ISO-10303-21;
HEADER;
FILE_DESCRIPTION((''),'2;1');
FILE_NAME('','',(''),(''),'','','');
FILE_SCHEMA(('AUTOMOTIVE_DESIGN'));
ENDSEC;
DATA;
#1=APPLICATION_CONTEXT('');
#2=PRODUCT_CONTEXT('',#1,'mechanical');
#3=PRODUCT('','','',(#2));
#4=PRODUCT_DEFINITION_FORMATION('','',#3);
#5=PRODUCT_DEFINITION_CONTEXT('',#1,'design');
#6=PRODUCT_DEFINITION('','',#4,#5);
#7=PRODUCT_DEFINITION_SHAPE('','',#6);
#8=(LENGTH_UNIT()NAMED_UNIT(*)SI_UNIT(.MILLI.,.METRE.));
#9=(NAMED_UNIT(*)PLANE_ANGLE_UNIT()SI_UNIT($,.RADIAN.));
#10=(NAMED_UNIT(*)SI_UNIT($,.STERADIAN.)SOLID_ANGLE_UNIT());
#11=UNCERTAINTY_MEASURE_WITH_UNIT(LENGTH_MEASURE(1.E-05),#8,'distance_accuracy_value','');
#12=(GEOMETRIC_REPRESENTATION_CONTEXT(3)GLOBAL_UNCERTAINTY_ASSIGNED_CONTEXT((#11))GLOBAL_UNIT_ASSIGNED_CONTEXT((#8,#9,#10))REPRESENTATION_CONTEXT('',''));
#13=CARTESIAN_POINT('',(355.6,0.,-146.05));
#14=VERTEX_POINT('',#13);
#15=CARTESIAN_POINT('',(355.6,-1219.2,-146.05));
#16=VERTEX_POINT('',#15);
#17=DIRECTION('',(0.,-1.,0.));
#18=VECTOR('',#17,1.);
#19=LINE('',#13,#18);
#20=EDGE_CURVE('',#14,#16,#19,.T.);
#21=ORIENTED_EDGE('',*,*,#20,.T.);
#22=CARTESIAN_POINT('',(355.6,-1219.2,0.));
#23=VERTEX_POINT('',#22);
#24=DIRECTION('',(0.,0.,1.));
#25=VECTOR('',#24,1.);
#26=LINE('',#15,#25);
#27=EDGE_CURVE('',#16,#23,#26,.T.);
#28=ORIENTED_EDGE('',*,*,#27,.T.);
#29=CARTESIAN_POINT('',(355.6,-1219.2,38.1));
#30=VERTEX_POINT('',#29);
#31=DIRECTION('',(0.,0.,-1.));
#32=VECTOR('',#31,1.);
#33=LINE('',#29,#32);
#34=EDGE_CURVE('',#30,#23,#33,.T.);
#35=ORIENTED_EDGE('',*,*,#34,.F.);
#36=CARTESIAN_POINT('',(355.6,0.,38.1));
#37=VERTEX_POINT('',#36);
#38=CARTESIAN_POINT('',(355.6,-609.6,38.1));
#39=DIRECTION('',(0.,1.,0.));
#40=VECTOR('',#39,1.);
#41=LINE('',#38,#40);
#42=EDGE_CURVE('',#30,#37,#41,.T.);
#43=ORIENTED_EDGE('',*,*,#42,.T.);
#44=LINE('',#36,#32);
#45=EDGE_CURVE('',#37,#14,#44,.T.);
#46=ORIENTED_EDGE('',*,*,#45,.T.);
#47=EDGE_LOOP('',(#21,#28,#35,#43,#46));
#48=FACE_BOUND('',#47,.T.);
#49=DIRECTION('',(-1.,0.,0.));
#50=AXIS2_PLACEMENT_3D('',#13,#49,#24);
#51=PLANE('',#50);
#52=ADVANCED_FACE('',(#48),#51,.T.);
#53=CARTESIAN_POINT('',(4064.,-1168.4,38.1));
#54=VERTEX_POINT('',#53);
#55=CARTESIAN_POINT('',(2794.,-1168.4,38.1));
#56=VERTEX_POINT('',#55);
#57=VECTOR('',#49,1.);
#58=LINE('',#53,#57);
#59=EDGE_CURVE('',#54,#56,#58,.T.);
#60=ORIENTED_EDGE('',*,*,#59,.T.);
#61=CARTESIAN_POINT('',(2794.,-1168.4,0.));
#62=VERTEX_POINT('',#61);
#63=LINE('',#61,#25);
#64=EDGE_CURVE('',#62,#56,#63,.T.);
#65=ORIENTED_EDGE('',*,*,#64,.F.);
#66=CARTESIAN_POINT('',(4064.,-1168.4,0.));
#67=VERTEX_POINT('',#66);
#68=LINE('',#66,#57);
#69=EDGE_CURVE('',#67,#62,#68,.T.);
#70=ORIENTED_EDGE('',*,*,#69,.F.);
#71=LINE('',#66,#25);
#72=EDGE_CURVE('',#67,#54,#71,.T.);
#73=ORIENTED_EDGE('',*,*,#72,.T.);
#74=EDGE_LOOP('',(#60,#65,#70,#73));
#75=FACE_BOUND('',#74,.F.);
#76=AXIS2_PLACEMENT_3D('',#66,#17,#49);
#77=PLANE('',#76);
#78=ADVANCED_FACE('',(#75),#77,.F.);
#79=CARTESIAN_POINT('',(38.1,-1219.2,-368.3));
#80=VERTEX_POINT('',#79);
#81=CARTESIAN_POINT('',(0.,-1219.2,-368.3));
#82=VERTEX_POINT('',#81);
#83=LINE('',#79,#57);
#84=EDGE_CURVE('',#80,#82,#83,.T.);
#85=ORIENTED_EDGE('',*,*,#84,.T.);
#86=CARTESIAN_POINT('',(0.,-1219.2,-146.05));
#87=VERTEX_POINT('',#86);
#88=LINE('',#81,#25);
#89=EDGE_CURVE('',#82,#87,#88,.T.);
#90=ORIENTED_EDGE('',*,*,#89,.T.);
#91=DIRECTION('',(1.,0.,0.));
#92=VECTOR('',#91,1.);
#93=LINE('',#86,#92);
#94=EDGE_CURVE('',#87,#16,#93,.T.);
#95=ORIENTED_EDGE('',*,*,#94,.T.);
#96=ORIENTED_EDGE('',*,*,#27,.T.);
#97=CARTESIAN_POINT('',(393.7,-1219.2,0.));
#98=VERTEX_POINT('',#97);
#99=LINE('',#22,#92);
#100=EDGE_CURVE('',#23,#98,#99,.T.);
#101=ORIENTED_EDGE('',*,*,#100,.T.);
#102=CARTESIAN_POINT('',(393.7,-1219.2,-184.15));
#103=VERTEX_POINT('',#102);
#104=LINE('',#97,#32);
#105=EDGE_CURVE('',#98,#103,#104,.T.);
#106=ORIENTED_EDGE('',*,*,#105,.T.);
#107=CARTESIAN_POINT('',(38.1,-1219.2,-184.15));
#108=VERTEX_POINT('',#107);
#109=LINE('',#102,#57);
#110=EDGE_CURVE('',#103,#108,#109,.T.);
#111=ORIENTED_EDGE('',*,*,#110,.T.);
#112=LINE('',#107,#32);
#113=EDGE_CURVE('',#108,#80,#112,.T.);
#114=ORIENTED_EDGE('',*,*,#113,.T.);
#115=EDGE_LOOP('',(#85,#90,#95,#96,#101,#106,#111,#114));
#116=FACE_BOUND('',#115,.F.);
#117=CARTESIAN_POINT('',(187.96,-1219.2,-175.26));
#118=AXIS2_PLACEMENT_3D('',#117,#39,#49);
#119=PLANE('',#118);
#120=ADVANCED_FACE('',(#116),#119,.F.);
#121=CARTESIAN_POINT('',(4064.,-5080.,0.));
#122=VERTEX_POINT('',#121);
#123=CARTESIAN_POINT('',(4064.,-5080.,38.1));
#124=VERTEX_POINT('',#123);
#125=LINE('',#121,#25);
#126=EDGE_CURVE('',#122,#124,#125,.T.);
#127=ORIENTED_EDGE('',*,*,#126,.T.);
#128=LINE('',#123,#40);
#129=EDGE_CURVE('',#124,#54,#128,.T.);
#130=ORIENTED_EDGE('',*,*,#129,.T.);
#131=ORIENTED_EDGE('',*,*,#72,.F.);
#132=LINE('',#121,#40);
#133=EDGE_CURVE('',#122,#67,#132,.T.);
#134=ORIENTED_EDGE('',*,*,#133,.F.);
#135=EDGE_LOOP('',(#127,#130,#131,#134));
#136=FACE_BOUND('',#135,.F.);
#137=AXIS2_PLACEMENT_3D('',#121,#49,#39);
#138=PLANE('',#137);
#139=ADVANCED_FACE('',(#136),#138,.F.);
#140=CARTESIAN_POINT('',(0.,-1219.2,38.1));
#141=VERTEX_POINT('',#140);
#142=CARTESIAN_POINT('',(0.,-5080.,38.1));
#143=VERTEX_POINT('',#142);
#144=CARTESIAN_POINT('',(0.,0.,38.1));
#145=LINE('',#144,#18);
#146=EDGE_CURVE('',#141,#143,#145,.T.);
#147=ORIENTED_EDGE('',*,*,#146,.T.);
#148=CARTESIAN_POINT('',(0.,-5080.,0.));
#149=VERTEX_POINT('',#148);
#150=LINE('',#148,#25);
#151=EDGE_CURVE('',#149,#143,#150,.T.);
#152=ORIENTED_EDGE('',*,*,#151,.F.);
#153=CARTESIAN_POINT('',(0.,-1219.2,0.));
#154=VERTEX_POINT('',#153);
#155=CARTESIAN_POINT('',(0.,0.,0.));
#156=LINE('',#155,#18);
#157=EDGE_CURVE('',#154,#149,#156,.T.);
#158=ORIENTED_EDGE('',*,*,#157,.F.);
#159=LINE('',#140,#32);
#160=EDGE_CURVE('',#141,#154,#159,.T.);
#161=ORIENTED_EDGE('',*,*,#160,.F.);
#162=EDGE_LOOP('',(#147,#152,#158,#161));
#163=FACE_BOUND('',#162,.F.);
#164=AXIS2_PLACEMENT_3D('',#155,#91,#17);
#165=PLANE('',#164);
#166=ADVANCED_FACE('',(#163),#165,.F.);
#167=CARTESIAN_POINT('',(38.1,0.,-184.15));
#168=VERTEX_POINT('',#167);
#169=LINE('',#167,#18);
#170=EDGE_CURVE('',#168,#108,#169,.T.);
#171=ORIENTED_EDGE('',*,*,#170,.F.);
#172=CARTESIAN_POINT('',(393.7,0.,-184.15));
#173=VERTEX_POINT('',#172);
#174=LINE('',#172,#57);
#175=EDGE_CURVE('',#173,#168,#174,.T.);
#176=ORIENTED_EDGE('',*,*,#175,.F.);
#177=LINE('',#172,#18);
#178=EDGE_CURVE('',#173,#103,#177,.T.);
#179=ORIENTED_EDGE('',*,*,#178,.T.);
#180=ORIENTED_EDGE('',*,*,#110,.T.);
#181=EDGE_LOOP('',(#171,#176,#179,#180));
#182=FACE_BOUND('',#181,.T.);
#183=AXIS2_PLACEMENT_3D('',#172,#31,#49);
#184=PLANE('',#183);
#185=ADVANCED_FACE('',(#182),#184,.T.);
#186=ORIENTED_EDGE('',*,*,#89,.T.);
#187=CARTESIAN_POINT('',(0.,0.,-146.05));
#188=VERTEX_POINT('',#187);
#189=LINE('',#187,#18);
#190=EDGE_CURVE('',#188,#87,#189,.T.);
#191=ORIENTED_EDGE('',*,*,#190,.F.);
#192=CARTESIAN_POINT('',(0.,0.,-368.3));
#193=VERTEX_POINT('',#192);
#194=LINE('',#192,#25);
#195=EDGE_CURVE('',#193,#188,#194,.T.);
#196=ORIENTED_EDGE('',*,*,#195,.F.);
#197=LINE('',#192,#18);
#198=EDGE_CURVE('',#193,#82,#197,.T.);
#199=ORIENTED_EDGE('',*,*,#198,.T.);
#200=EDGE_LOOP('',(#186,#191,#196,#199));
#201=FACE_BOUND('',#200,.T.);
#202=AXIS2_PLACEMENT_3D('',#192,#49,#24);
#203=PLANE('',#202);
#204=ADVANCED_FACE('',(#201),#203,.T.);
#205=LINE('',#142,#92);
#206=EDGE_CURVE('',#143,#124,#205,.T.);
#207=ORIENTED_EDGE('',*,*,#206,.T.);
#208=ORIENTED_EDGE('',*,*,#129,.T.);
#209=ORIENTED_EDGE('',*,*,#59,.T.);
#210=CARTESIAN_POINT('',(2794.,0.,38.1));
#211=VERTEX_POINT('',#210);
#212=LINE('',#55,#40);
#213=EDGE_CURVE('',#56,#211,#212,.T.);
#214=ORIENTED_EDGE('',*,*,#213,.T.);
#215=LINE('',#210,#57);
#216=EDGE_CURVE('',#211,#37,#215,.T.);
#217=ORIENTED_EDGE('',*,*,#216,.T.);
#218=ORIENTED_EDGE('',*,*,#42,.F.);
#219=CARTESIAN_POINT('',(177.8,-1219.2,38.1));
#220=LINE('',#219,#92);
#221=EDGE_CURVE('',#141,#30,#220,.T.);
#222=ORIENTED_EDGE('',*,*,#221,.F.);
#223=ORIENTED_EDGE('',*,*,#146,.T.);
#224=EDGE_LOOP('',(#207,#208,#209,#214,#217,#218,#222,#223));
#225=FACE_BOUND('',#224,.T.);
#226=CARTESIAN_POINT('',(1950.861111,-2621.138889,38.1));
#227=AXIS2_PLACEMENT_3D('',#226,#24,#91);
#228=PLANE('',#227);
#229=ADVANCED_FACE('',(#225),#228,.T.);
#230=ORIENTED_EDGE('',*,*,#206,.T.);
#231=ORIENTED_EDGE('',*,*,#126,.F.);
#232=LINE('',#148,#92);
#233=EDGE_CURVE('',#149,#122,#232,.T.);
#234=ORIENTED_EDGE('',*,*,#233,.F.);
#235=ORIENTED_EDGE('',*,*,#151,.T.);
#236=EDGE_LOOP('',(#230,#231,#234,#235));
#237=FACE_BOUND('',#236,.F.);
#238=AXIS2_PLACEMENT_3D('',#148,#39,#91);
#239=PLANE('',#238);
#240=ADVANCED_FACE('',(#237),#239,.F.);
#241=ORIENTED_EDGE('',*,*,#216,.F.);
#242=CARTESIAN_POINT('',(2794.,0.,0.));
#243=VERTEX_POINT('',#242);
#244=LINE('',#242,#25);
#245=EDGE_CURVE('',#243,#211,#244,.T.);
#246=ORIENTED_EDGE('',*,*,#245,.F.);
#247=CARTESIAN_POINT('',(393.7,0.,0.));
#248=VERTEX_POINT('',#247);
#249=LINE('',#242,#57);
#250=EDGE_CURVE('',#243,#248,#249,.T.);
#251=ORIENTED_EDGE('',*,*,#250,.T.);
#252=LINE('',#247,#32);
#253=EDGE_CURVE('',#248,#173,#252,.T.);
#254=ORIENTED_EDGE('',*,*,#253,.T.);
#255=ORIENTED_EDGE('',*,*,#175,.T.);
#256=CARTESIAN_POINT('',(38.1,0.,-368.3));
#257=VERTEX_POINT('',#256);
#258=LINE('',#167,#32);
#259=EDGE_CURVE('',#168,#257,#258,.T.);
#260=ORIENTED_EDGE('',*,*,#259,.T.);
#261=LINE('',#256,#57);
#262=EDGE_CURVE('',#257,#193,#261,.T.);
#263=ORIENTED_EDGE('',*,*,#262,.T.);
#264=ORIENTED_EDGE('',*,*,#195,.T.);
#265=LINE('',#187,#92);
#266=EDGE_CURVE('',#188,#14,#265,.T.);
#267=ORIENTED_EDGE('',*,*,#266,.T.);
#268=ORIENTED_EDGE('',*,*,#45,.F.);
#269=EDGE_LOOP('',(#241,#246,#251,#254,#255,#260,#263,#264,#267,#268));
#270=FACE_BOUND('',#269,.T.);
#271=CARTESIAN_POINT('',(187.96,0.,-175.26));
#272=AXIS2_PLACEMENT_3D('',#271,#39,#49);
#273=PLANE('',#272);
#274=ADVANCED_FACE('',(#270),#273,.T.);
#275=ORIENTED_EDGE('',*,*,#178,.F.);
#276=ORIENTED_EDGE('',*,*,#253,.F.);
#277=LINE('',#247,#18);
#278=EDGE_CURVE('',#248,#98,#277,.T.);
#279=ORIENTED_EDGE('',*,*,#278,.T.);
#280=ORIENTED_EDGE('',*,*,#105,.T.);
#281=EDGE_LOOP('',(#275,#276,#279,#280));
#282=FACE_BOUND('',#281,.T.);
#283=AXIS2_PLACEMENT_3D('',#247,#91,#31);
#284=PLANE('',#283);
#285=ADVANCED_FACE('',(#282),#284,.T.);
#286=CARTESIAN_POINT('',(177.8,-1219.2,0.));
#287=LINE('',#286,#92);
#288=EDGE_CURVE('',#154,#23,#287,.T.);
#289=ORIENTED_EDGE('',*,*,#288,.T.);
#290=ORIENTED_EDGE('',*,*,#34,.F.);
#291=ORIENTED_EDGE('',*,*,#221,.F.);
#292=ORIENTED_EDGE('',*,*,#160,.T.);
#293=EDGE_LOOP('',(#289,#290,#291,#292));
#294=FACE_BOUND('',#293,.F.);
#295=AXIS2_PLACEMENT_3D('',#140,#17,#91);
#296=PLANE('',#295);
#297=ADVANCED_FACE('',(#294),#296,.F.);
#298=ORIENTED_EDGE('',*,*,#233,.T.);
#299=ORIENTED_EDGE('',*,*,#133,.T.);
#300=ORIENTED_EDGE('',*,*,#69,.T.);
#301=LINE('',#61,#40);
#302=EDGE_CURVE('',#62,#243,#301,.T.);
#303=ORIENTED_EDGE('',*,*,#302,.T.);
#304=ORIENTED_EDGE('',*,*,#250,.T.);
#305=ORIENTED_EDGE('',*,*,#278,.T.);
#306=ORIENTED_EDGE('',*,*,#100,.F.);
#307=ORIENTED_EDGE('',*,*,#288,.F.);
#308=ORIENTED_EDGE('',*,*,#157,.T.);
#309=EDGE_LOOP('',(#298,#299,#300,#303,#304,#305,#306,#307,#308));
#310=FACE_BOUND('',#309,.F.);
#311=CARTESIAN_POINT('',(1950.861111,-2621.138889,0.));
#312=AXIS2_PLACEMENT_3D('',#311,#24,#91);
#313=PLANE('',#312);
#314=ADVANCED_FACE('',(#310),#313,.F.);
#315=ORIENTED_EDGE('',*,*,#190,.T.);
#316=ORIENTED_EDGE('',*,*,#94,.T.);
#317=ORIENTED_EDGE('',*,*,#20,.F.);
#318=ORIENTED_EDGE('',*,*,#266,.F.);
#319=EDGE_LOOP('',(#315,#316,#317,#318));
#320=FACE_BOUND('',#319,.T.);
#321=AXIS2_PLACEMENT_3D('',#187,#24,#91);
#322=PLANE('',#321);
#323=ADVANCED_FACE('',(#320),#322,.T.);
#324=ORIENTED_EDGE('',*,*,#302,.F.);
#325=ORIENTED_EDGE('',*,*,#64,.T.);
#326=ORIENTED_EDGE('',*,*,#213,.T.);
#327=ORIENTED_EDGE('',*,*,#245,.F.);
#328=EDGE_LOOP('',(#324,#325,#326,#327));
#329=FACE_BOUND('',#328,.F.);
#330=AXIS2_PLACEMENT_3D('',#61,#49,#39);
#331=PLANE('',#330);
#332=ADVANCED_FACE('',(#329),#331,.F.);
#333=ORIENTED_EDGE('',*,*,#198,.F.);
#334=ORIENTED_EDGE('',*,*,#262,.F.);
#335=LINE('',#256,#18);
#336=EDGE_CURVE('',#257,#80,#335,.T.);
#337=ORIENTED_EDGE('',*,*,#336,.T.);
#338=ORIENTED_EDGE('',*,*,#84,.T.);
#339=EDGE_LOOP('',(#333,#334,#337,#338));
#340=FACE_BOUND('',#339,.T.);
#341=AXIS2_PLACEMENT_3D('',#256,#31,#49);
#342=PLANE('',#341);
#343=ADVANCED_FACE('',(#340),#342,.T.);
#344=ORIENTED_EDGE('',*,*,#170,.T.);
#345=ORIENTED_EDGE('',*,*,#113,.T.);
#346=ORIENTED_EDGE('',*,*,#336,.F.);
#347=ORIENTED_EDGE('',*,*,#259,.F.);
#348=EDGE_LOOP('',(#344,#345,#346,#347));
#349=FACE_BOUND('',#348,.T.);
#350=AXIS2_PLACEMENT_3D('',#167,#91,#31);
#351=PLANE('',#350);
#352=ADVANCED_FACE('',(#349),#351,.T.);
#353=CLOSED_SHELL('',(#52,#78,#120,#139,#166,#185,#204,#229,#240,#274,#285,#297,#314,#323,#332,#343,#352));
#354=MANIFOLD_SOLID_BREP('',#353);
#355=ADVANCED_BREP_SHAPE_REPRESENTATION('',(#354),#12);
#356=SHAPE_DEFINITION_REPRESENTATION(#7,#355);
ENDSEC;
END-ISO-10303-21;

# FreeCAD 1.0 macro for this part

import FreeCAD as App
import Part
import Sketcher
from FreeCAD import Vector
Q = App.Units.Quantity

doc = App.newDocument("Part")
body = doc.addObject("PartDesign::Body", "Body")

# Sketch on XY plane
sketch1 = doc.addObject("Sketcher::SketchObject", "Sketch")
body.addObject(sketch1)
sketch1.AttachmentSupport = (doc.XY_Plane, [""])
sketch1.MapMode = "FlatFace"
sketch1.addGeometry(Part.LineSegment(Vector(2794, 0, 0), Vector(0, 0, 0)), False)
sketch1.addGeometry(Part.LineSegment(Vector(0, 0, 0), Vector(0, -5080, 0)), False)
sketch1.addGeometry(Part.LineSegment(Vector(0, -5080, 0), Vector(4064, -5080, 0)), False)
sketch1.addGeometry(Part.LineSegment(Vector(4064, -5080, 0), Vector(4064, -1168, 0)), False)
sketch1.addGeometry(Part.LineSegment(Vector(4064, -1168, 0), Vector(2794, -1168, 0)), False)
sketch1.addGeometry(Part.LineSegment(Vector(2794, -1168, 0), Vector(2794, 0, 0)), False)
sketch1.addConstraint(Sketcher.Constraint("Coincident", 0, 2, 1, 1))
sketch1.addConstraint(Sketcher.Constraint("Coincident", 1, 2, 2, 1))
sketch1.addConstraint(Sketcher.Constraint("Coincident", 2, 2, 3, 1))
sketch1.addConstraint(Sketcher.Constraint("Coincident", 3, 2, 4, 1))
sketch1.addConstraint(Sketcher.Constraint("Coincident", 4, 2, 5, 1))
sketch1.addConstraint(Sketcher.Constraint("Coincident", 5, 2, 0, 1))
sketch1.addConstraint(Sketcher.Constraint("Horizontal", 0))
sketch1.addConstraint(Sketcher.Constraint("Vertical", 1))
sketch1.addConstraint(Sketcher.Constraint("Horizontal", 2))
sketch1.addConstraint(Sketcher.Constraint("Vertical", 3))
sketch1.addConstraint(Sketcher.Constraint("Horizontal", 4))
sketch1.addConstraint(Sketcher.Constraint("Vertical", 5))
sketch1.addConstraint(Sketcher.Constraint("Coincident", 0, 2, -1, 1))
sketch1.addConstraint(Sketcher.Constraint("DistanceX", 0, 2, 0, 1, Q("110 in")))
sketch1.addConstraint(Sketcher.Constraint("DistanceX", 2, 1, 2, 2, Q("160 in")))
sketch1.addConstraint(Sketcher.Constraint("DistanceY", 1, 2, 1, 1, Q("200 in")))
sketch1.addConstraint(Sketcher.Constraint("DistanceY", 3, 1, 3, 2, Q("154 in")))
pad1 = doc.addObject("PartDesign::Pad", "Pad")
body.addObject(pad1)
pad1.Profile = sketch1
pad1.Length = Q("1.5 in")

# Sketch on XY plane
sketch2 = doc.addObject("Sketcher::SketchObject", "Sketch001")
body.addObject(sketch2)
sketch2.AttachmentSupport = (doc.XY_Plane, [""])
sketch2.MapMode = "FlatFace"
sketch2.AttachmentOffset = App.Placement(Vector(0, 0, 1.5 * 25.4), App.Rotation())
sketch2.addGeometry(Part.LineSegment(Vector(0, 0, 0), Vector(0, -1219, 0)), False)
sketch2.addGeometry(Part.LineSegment(Vector(0, -1219, 0), Vector(356, -1219, 0)), False)
sketch2.addGeometry(Part.LineSegment(Vector(356, -1219, 0), Vector(356, 0, 0)), False)
sketch2.addGeometry(Part.LineSegment(Vector(356, 0, 0), Vector(0, 0, 0)), False)
sketch2.addConstraint(Sketcher.Constraint("Coincident", 0, 2, 1, 1))
sketch2.addConstraint(Sketcher.Constraint("Coincident", 1, 2, 2, 1))
sketch2.addConstraint(Sketcher.Constraint("Coincident", 2, 2, 3, 1))
sketch2.addConstraint(Sketcher.Constraint("Coincident", 3, 2, 0, 1))
sketch2.addConstraint(Sketcher.Constraint("Vertical", 0))
sketch2.addConstraint(Sketcher.Constraint("Horizontal", 1))
sketch2.addConstraint(Sketcher.Constraint("Vertical", 2))
sketch2.addConstraint(Sketcher.Constraint("Horizontal", 3))
sketch2.addConstraint(Sketcher.Constraint("Coincident", 3, 2, -1, 1))
sketch2.addConstraint(Sketcher.Constraint("DistanceX", 1, 1, 1, 2, Q("14 in")))
sketch2.addConstraint(Sketcher.Constraint("DistanceY", 0, 2, 0, 1, Q("48 in")))
pocket1 = doc.addObject("PartDesign::Pocket", "Pocket")
body.addObject(pocket1)
pocket1.Profile = sketch2
pocket1.Length = Q("1.5 in")

# Sketch on XZ plane
sketch3 = doc.addObject("Sketcher::SketchObject", "Sketch002")
body.addObject(sketch3)
sketch3.AttachmentSupport = (doc.XZ_Plane, [""])
sketch3.MapMode = "FlatFace"
sketch3.addGeometry(Part.LineSegment(Vector(356, -146, 0), Vector(356, 0, 0)), False)
sketch3.addGeometry(Part.LineSegment(Vector(356, 0, 0), Vector(394, 0, 0)), False)
sketch3.addGeometry(Part.LineSegment(Vector(394, 0, 0), Vector(394, -184, 0)), False)
sketch3.addGeometry(Part.LineSegment(Vector(394, -184, 0), Vector(38, -184, 0)), False)
sketch3.addGeometry(Part.LineSegment(Vector(38, -184, 0), Vector(38, -368, 0)), False)
sketch3.addGeometry(Part.LineSegment(Vector(38, -368, 0), Vector(0, -368, 0)), False)
sketch3.addGeometry(Part.LineSegment(Vector(0, -368, 0), Vector(0, -146, 0)), False)
sketch3.addGeometry(Part.LineSegment(Vector(0, -146, 0), Vector(356, -146, 0)), False)
sketch3.addConstraint(Sketcher.Constraint("Coincident", 0, 2, 1, 1))
sketch3.addConstraint(Sketcher.Constraint("Coincident", 1, 2, 2, 1))
sketch3.addConstraint(Sketcher.Constraint("Coincident", 2, 2, 3, 1))
sketch3.addConstraint(Sketcher.Constraint("Coincident", 3, 2, 4, 1))
sketch3.addConstraint(Sketcher.Constraint("Coincident", 4, 2, 5, 1))
sketch3.addConstraint(Sketcher.Constraint("Coincident", 5, 2, 6, 1))
sketch3.addConstraint(Sketcher.Constraint("Coincident", 6, 2, 7, 1))
sketch3.addConstraint(Sketcher.Constraint("Coincident", 7, 2, 0, 1))
sketch3.addConstraint(Sketcher.Constraint("Vertical", 0))
sketch3.addConstraint(Sketcher.Constraint("Horizontal", 1))
sketch3.addConstraint(Sketcher.Constraint("Vertical", 2))
sketch3.addConstraint(Sketcher.Constraint("Horizontal", 3))
sketch3.addConstraint(Sketcher.Constraint("Vertical", 4))
sketch3.addConstraint(Sketcher.Constraint("Horizontal", 5))
sketch3.addConstraint(Sketcher.Constraint("Vertical", 6))
sketch3.addConstraint(Sketcher.Constraint("Horizontal", 7))
sketch3.addConstraint(Sketcher.Constraint("PointOnObject", 0, 2, -1))
sketch3.addConstraint(Sketcher.Constraint("PointOnObject", 5, 2, -2))
sketch3.addConstraint(Sketcher.Constraint("Equal", 1, 5))
sketch3.addConstraint(Sketcher.Constraint("Equal", 2, 4))
sketch3.addConstraint(Sketcher.Constraint("DistanceX", 3, 2, 3, 1, Q("14 in")))
sketch3.addConstraint(Sketcher.Constraint("DistanceX", 1, 1, 1, 2, Q("1.5 in")))
sketch3.addConstraint(Sketcher.Constraint("DistanceY", 0, 1, 0, 2, Q("5.75 in")))
sketch3.addConstraint(Sketcher.Constraint("DistanceY", 2, 2, 2, 1, Q("7.25 in")))
pad2 = doc.addObject("PartDesign::Pad", "Pad001")
body.addObject(pad2)
pad2.Profile = sketch3
pad2.Length = Q("48 in")

doc.recompute()
